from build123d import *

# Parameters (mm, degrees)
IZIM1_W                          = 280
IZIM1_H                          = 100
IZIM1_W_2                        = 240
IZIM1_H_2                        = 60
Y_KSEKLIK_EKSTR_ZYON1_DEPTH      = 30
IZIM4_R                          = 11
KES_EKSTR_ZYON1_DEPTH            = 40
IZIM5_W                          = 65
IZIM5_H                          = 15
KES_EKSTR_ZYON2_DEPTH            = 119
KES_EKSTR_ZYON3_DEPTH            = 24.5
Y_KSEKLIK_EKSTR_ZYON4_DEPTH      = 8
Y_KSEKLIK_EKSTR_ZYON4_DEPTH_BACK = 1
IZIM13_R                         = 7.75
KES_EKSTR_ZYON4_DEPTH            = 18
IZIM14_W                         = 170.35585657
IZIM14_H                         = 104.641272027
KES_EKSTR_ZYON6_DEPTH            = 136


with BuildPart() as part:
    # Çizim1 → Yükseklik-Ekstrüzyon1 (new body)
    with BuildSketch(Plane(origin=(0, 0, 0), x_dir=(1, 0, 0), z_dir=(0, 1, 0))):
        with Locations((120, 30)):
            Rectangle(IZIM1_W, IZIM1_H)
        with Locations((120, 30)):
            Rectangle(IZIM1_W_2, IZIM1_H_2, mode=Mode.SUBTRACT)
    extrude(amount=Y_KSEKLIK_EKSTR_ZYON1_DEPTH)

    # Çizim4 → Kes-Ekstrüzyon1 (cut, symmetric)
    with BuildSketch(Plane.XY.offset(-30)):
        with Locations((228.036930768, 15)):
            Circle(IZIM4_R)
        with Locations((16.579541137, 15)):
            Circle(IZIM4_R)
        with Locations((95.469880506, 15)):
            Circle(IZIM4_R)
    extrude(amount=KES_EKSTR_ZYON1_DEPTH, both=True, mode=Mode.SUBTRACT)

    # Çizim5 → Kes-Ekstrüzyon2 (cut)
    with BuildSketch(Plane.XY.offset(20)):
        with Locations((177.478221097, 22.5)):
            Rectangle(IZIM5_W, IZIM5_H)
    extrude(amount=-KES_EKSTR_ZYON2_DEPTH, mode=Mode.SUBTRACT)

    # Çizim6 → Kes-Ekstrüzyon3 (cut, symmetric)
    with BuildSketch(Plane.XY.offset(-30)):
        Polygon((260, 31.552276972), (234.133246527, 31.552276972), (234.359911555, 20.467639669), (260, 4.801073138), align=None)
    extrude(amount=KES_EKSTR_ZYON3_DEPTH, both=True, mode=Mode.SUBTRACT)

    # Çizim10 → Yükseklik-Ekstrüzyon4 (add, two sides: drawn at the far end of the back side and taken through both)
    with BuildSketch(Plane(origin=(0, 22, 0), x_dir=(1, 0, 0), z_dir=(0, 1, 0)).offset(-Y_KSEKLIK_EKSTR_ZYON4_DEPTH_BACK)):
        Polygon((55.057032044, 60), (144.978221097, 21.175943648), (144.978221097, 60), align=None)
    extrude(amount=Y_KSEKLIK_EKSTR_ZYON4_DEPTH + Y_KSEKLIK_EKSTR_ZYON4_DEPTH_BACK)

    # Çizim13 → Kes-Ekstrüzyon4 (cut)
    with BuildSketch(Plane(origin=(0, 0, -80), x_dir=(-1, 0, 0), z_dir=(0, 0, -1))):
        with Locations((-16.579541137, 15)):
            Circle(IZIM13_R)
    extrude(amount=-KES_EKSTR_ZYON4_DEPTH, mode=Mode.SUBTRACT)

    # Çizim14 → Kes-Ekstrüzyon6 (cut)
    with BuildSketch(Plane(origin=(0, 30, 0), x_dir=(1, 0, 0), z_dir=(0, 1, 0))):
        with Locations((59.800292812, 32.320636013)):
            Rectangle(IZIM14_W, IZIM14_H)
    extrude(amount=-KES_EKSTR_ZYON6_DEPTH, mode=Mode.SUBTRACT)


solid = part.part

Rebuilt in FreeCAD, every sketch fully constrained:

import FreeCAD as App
import Part
import Sketcher
from FreeCAD import Vector

doc = App.newDocument("Part")
body = doc.addObject("PartDesign::Body", "Body")

# Sketch on XZ plane
sketch1 = body.newObject("Sketcher::SketchObject", "Sketch")
sketch1.AttachmentSupport = (doc.getObject("XZ_Plane"), [""])
sketch1.MapMode = "FlatFace"
sketch1.addGeometry(Part.LineSegment(Vector(-20, -80, 0), Vector(-20, 20, 0)), False)
sketch1.addGeometry(Part.LineSegment(Vector(-20, 20, 0), Vector(260, 20, 0)), False)
sketch1.addGeometry(Part.LineSegment(Vector(260, 20, 0), Vector(260, -80, 0)), False)
sketch1.addGeometry(Part.LineSegment(Vector(260, -80, 0), Vector(-20, -80, 0)), False)
sketch1.addGeometry(Part.LineSegment(Vector(240, 0, 0), Vector(0, 0, 0)), False)
sketch1.addGeometry(Part.LineSegment(Vector(0, 0, 0), Vector(0, -60, 0)), False)
sketch1.addGeometry(Part.LineSegment(Vector(0, -60, 0), Vector(240, -60, 0)), False)
sketch1.addGeometry(Part.LineSegment(Vector(240, -60, 0), Vector(240, 0, 0)), False)
sketch1.addConstraint(Sketcher.Constraint("Coincident", 0, 2, 1, 1))
sketch1.addConstraint(Sketcher.Constraint("Coincident", 1, 2, 2, 1))
sketch1.addConstraint(Sketcher.Constraint("Coincident", 2, 2, 3, 1))
sketch1.addConstraint(Sketcher.Constraint("Coincident", 3, 2, 0, 1))
sketch1.addConstraint(Sketcher.Constraint("Coincident", 4, 2, 5, 1))
sketch1.addConstraint(Sketcher.Constraint("Coincident", 5, 2, 6, 1))
sketch1.addConstraint(Sketcher.Constraint("Coincident", 6, 2, 7, 1))
sketch1.addConstraint(Sketcher.Constraint("Coincident", 7, 2, 4, 1))
sketch1.addConstraint(Sketcher.Constraint("Vertical", 0))
sketch1.addConstraint(Sketcher.Constraint("Horizontal", 1))
sketch1.addConstraint(Sketcher.Constraint("Vertical", 2))
sketch1.addConstraint(Sketcher.Constraint("Horizontal", 3))
sketch1.addConstraint(Sketcher.Constraint("Horizontal", 4))
sketch1.addConstraint(Sketcher.Constraint("Vertical", 5))
sketch1.addConstraint(Sketcher.Constraint("Horizontal", 6))
sketch1.addConstraint(Sketcher.Constraint("Vertical", 7))
sketch1.addConstraint(Sketcher.Constraint("Coincident", 4, 2, -1, 1))
sketch1.addConstraint(Sketcher.Constraint("DistanceX", 1, 1, 1, 2, 280.0))
sketch1.addConstraint(Sketcher.Constraint("DistanceX", 4, 2, 4, 1, 240.0))
sketch1.addConstraint(Sketcher.Constraint("DistanceY", 0, 1, 0, 2, 100.0))
sketch1.addConstraint(Sketcher.Constraint("DistanceY", 5, 2, 5, 1, 60.0))
sketch1.addConstraint(Sketcher.Constraint("DistanceX", 0, 2, -1, 1, 20.0))
sketch1.addConstraint(Sketcher.Constraint("DistanceY", -1, 1, 0, 2, 20.0))
pad1 = body.newObject("PartDesign::Pad", "Pad")
pad1.Profile = sketch1
pad1.Length = 30
pad1.Reversed = True

# Sketch on XY plane
sketch2 = body.newObject("Sketcher::SketchObject", "Sketch001")
sketch2.AttachmentSupport = (doc.getObject("XY_Plane"), [""])
sketch2.MapMode = "FlatFace"
sketch2.AttachmentOffset = App.Placement(Vector(0, 0, -30), App.Rotation())
sketch2.addGeometry(Part.Circle(Vector(228, 15, 0), Vector(0, 0, 1), 11), False)
sketch2.addGeometry(Part.Circle(Vector(17, 15, 0), Vector(0, 0, 1), 11), False)
sketch2.addGeometry(Part.Circle(Vector(95, 15, 0), Vector(0, 0, 1), 11), False)
sketch2.addConstraint(Sketcher.Constraint("Equal", 0, 1))
sketch2.addConstraint(Sketcher.Constraint("Equal", 1, 2))
sketch2.addConstraint(Sketcher.Constraint("Horizontal", 0, 3, 1, 3))
sketch2.addConstraint(Sketcher.Constraint("Horizontal", 1, 3, 2, 3))
sketch2.addConstraint(Sketcher.Constraint("Diameter", 0, 22.0))
sketch2.addConstraint(Sketcher.Constraint("DistanceY", -1, 1, 0, 3, 15.0))
sketch2.addConstraint(Sketcher.Constraint("DistanceX", -1, 1, 0, 3, 228.036931))
sketch2.addConstraint(Sketcher.Constraint("DistanceX", -1, 1, 1, 3, 16.579541))
sketch2.addConstraint(Sketcher.Constraint("DistanceX", -1, 1, 2, 3, 95.469881))
pocket1 = body.newObject("PartDesign::Pocket", "Pocket")
pocket1.Profile = sketch2
pocket1.Length = 80
pocket1.Midplane = True

# Sketch on XY plane
sketch3 = body.newObject("Sketcher::SketchObject", "Sketch002")
sketch3.AttachmentSupport = (doc.getObject("XY_Plane"), [""])
sketch3.MapMode = "FlatFace"
sketch3.AttachmentOffset = App.Placement(Vector(0, 0, 20), App.Rotation())
sketch3.addGeometry(Part.LineSegment(Vector(145, 30, 0), Vector(145, 15, 0)), False)
sketch3.addGeometry(Part.LineSegment(Vector(145, 15, 0), Vector(210, 15, 0)), False)
sketch3.addGeometry(Part.LineSegment(Vector(210, 15, 0), Vector(210, 30, 0)), False)
sketch3.addGeometry(Part.LineSegment(Vector(210, 30, 0), Vector(145, 30, 0)), False)
sketch3.addConstraint(Sketcher.Constraint("Coincident", 0, 2, 1, 1))
sketch3.addConstraint(Sketcher.Constraint("Coincident", 1, 2, 2, 1))
sketch3.addConstraint(Sketcher.Constraint("Coincident", 2, 2, 3, 1))
sketch3.addConstraint(Sketcher.Constraint("Coincident", 3, 2, 0, 1))
sketch3.addConstraint(Sketcher.Constraint("Vertical", 0))
sketch3.addConstraint(Sketcher.Constraint("Horizontal", 1))
sketch3.addConstraint(Sketcher.Constraint("Vertical", 2))
sketch3.addConstraint(Sketcher.Constraint("Horizontal", 3))
sketch3.addConstraint(Sketcher.Constraint("DistanceX", 1, 1, 1, 2, 65.0))
sketch3.addConstraint(Sketcher.Constraint("DistanceY", 0, 2, 0, 1, 15.0))
sketch3.addConstraint(Sketcher.Constraint("DistanceY", -1, 1, 0, 2, 15.0))
sketch3.addConstraint(Sketcher.Constraint("DistanceX", -1, 1, 0, 2, 144.978221))
pocket2 = body.newObject("PartDesign::Pocket", "Pocket001")
pocket2.Profile = sketch3
pocket2.Length = 119

# Sketch on XY plane
sketch4 = body.newObject("Sketcher::SketchObject", "Sketch003")
sketch4.AttachmentSupport = (doc.getObject("XY_Plane"), [""])
sketch4.MapMode = "FlatFace"
sketch4.AttachmentOffset = App.Placement(Vector(0, 0, -30), App.Rotation())
sketch4.addGeometry(Part.LineSegment(Vector(260, 32, 0), Vector(234, 32, 0)), False)
sketch4.addGeometry(Part.LineSegment(Vector(234, 32, 0), Vector(234, 20, 0)), False)
sketch4.addGeometry(Part.LineSegment(Vector(234, 20, 0), Vector(260, 5, 0)), False)
sketch4.addGeometry(Part.LineSegment(Vector(260, 5, 0), Vector(260, 32, 0)), False)
sketch4.addConstraint(Sketcher.Constraint("Coincident", 0, 2, 1, 1))
sketch4.addConstraint(Sketcher.Constraint("Coincident", 1, 2, 2, 1))
sketch4.addConstraint(Sketcher.Constraint("Coincident", 2, 2, 3, 1))
sketch4.addConstraint(Sketcher.Constraint("Coincident", 3, 2, 0, 1))
sketch4.addConstraint(Sketcher.Constraint("Horizontal", 0))
sketch4.addConstraint(Sketcher.Constraint("Vertical", 3))
sketch4.addConstraint(Sketcher.Constraint("DistanceX", -1, 1, 2, 2, 260.0))
sketch4.addConstraint(Sketcher.Constraint("DistanceX", 0, 2, 0, 1, 25.866753))
sketch4.addConstraint(Sketcher.Constraint("DistanceY", 3, 1, 3, 2, 26.751204))
sketch4.addConstraint(Sketcher.Constraint("DistanceX", -1, 1, 1, 2, 234.359912))
sketch4.addConstraint(Sketcher.Constraint("DistanceY", -1, 1, 1, 2, 20.46764))
sketch4.addConstraint(Sketcher.Constraint("Distance", 1, 11.086955))
pocket3 = body.newObject("PartDesign::Pocket", "Pocket002")
pocket3.Profile = sketch4
pocket3.Length = 49
pocket3.Midplane = True

# Sketch on XZ plane
sketch5 = body.newObject("Sketcher::SketchObject", "Sketch004")
sketch5.AttachmentSupport = (doc.getObject("XZ_Plane"), [""])
sketch5.MapMode = "FlatFace"
sketch5.AttachmentOffset = App.Placement(Vector(0, 0, -22), App.Rotation())
sketch5.addGeometry(Part.LineSegment(Vector(55, -60, 0), Vector(145, -21, 0)), False)
sketch5.addGeometry(Part.LineSegment(Vector(145, -21, 0), Vector(145, -60, 0)), False)
sketch5.addGeometry(Part.LineSegment(Vector(145, -60, 0), Vector(55, -60, 0)), False)
sketch5.addConstraint(Sketcher.Constraint("Coincident", 0, 2, 1, 1))
sketch5.addConstraint(Sketcher.Constraint("Coincident", 1, 2, 2, 1))
sketch5.addConstraint(Sketcher.Constraint("Coincident", 2, 2, 0, 1))
sketch5.addConstraint(Sketcher.Constraint("Vertical", 1))
sketch5.addConstraint(Sketcher.Constraint("Horizontal", 2))
sketch5.addConstraint(Sketcher.Constraint("DistanceY", 1, 2, -1, 1, 60.0))
sketch5.addConstraint(Sketcher.Constraint("DistanceX", 2, 2, 2, 1, 89.921189))
sketch5.addConstraint(Sketcher.Constraint("DistanceY", 1, 2, 1, 1, 38.824056))
sketch5.addConstraint(Sketcher.Constraint("DistanceX", -1, 1, 0, 2, 144.978221))
pad2 = body.newObject("PartDesign::Pad", "Pad001")
pad2.Profile = sketch5
pad2.Type = "TwoLengths"
pad2.Length = 8
pad2.Length2 = 1
pad2.Reversed = True

# Sketch on XY plane
sketch6 = body.newObject("Sketcher::SketchObject", "Sketch005")
sketch6.AttachmentSupport = (doc.getObject("XY_Plane"), [""])
sketch6.MapMode = "FlatFace"
sketch6.AttachmentOffset = App.Placement(Vector(0, 0, -80), App.Rotation())
sketch6.addGeometry(Part.Circle(Vector(17, 15, 0), Vector(0, 0, 1), 8), False)
sketch6.addConstraint(Sketcher.Constraint("Diameter", 0, 15.5))
sketch6.addConstraint(Sketcher.Constraint("DistanceY", -1, 1, 0, 3, 15.0))
sketch6.addConstraint(Sketcher.Constraint("DistanceX", -1, 1, 0, 3, 16.579541))
pocket4 = body.newObject("PartDesign::Pocket", "Pocket003")
pocket4.Profile = sketch6
pocket4.Length = 18
pocket4.Reversed = True

# Sketch on XZ plane
sketch7 = body.newObject("Sketcher::SketchObject", "Sketch006")
sketch7.AttachmentSupport = (doc.getObject("XZ_Plane"), [""])
sketch7.MapMode = "FlatFace"
sketch7.AttachmentOffset = App.Placement(Vector(0, 0, -30), App.Rotation())
sketch7.addGeometry(Part.LineSegment(Vector(-25, -85, 0), Vector(-25, 20, 0)), False)
sketch7.addGeometry(Part.LineSegment(Vector(-25, 20, 0), Vector(145, 20, 0)), False)
sketch7.addGeometry(Part.LineSegment(Vector(145, 20, 0), Vector(145, -85, 0)), False)
sketch7.addGeometry(Part.LineSegment(Vector(145, -85, 0), Vector(-25, -85, 0)), False)
sketch7.addConstraint(Sketcher.Constraint("Coincident", 0, 2, 1, 1))
sketch7.addConstraint(Sketcher.Constraint("Coincident", 1, 2, 2, 1))
sketch7.addConstraint(Sketcher.Constraint("Coincident", 2, 2, 3, 1))
sketch7.addConstraint(Sketcher.Constraint("Coincident", 3, 2, 0, 1))
sketch7.addConstraint(Sketcher.Constraint("Vertical", 0))
sketch7.addConstraint(Sketcher.Constraint("Horizontal", 1))
sketch7.addConstraint(Sketcher.Constraint("Vertical", 2))
sketch7.addConstraint(Sketcher.Constraint("Horizontal", 3))
sketch7.addConstraint(Sketcher.Constraint("DistanceY", -1, 1, 0, 2, 20.0))
sketch7.addConstraint(Sketcher.Constraint("DistanceX", 1, 1, 1, 2, 170.355857))
sketch7.addConstraint(Sketcher.Constraint("DistanceY", 0, 1, 0, 2, 104.641272))
sketch7.addConstraint(Sketcher.Constraint("DistanceX", -1, 1, 1, 2, 144.978221))
pocket5 = body.newObject("PartDesign::Pocket", "Pocket004")
pocket5.Profile = sketch7
pocket5.Length = 136
pocket5.Reversed = True

doc.recompute()
